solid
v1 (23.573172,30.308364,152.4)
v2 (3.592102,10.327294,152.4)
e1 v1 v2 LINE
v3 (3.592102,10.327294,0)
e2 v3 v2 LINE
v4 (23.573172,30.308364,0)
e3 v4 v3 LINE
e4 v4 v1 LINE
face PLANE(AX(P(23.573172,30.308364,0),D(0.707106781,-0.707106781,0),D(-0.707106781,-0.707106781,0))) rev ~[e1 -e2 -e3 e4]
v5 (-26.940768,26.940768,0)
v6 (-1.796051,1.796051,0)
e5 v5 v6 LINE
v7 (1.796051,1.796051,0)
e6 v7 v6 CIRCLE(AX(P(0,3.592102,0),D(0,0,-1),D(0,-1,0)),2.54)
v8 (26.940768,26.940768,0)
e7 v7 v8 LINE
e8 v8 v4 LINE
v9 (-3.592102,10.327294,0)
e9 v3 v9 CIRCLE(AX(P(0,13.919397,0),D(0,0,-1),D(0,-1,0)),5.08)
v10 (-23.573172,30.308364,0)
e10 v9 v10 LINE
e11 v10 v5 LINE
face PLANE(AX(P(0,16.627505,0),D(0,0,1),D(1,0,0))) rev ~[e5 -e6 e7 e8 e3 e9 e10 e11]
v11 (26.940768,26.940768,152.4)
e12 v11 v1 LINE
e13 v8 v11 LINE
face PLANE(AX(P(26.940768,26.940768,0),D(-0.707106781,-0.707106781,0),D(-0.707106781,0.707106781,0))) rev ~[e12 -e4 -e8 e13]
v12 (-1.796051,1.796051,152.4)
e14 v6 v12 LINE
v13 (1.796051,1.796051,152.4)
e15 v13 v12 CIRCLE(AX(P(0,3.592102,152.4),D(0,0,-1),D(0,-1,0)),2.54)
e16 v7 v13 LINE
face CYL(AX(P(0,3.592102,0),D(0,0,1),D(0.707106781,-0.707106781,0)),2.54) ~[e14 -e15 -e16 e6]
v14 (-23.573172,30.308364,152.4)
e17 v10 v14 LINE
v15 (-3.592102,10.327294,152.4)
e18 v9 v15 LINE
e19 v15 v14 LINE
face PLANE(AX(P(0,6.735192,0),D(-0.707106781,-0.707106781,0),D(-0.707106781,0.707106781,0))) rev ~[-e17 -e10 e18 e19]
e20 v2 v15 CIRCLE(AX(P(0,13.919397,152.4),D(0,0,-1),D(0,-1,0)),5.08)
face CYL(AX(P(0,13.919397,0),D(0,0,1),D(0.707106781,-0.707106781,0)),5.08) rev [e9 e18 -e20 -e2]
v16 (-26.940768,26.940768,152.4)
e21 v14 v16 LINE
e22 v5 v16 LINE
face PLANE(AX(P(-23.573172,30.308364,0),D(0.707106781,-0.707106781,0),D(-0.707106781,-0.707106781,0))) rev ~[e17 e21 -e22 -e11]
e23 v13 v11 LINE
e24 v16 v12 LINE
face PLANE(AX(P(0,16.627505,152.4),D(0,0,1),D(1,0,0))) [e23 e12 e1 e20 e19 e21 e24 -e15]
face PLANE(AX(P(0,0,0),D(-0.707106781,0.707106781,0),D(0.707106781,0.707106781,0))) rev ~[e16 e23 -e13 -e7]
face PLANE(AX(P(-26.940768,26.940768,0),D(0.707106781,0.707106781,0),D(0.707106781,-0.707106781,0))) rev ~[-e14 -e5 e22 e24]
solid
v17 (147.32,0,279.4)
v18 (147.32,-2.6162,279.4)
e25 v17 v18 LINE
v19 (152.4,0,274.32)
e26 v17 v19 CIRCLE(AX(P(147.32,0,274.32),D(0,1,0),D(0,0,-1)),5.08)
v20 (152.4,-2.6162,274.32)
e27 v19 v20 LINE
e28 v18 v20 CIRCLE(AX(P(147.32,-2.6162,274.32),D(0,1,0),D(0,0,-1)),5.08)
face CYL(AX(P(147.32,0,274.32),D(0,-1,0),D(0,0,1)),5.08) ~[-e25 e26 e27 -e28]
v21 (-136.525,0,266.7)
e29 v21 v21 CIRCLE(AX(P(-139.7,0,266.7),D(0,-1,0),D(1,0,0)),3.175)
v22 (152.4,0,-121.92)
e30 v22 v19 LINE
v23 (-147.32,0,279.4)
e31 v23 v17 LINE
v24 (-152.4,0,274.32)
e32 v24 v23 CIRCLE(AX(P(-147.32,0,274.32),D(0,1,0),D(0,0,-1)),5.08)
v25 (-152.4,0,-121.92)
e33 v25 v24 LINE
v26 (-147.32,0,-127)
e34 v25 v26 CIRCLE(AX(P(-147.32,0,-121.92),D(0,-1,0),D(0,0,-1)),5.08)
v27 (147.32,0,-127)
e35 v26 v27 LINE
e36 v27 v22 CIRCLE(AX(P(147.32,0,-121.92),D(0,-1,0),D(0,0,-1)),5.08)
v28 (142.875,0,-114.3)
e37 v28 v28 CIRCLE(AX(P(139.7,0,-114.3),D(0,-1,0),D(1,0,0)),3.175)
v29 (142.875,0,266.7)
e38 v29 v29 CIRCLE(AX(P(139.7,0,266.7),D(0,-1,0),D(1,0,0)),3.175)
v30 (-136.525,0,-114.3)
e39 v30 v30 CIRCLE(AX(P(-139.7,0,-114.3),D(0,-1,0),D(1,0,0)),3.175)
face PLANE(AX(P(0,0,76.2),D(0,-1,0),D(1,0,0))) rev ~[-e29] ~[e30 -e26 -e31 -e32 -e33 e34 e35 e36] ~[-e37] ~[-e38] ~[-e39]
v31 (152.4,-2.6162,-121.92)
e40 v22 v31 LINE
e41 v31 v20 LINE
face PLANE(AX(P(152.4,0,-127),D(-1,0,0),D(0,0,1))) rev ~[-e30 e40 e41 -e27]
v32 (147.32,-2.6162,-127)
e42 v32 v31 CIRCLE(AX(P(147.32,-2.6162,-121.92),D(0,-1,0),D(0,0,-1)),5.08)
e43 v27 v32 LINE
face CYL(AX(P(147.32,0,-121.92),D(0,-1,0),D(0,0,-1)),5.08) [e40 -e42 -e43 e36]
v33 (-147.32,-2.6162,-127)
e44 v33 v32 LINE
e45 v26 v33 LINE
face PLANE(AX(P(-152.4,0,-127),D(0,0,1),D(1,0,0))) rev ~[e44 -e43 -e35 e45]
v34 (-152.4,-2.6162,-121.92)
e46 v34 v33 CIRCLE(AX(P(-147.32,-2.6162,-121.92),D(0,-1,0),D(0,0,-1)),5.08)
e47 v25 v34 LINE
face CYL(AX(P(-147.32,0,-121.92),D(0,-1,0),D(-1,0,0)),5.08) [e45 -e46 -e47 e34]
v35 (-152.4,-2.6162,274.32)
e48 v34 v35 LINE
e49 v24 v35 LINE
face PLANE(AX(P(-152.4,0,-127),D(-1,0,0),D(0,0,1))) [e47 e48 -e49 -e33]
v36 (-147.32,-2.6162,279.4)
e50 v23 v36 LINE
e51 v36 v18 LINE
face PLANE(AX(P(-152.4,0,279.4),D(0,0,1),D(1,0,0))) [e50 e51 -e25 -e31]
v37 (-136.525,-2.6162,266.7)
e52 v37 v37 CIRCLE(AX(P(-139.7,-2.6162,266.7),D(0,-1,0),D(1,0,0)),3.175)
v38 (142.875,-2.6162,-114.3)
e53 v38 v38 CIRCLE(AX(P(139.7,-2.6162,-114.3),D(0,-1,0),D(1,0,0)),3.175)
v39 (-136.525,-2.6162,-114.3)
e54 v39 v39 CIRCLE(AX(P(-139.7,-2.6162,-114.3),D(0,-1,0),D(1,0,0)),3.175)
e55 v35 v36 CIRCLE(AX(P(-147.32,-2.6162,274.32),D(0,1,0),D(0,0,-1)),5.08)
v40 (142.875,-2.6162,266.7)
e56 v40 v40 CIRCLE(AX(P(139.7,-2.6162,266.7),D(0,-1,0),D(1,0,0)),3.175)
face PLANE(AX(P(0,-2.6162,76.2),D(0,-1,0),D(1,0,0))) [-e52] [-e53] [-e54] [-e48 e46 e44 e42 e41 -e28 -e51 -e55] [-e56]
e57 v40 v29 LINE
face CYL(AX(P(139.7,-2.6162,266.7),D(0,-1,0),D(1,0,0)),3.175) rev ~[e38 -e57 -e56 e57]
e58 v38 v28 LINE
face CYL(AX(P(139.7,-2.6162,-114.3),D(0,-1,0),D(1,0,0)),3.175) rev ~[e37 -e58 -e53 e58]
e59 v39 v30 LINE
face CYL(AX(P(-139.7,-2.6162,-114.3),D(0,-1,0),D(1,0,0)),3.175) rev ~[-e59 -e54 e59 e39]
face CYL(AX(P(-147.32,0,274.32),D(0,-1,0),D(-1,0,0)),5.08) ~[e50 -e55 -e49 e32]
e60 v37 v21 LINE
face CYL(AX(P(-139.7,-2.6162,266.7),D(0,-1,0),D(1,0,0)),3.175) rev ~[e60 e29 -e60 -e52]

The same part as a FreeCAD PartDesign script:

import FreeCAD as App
import Part
import Sketcher
from FreeCAD import Vector
Q = App.Units.Quantity


def edges_at(feature, points):
    """Names of the edges that pass closest to the given points."""
    edges = feature.Shape.Edges
    near = lambda p: min(range(len(edges)), key=lambda i: edges[i].distToShape(Part.Vertex(*p))[0])
    return sorted({f"Edge{near(p) + 1}" for p in points})

doc = App.newDocument("Part")
params = doc.addObject("Spreadsheet::Sheet", "Params")
for row, (alias, value) in enumerate([
    ("sketch1_length", "1.5 in"),
    ("sketch1_length2", "0.1875 in"),
    ("pad1_length", "6 in"),
    ("fillet_radius", "0.2 in"),
    ("fillet2_radius", "0.1 in"),
    ("sketch2_width", "12 in"),
    ("sketch2_height", "16 in"),
    ("pad2_length", "0.103 in"),
    ("sketch3_diameter", "0.25 in"),
    ("fillet3_radius", "0.2 in"),
], start=1):
    params.set(f"A{row}", alias)
    params.set(f"B{row}", "=" + value)
    params.setAlias(f"B{row}", alias)

body = doc.addObject("PartDesign::Body", "Body")

sketch1 = body.newObject("Sketcher::SketchObject", "Sketch")
sketch1.AttachmentSupport = (doc.getObject("XY_Plane"), [""])
sketch1.MapMode = "FlatFace"
sketch1.addGeometry([
    Part.LineSegment(Vector(-23.6, 30.3, 0), Vector(-26.9, 26.9, 0)),
    Part.LineSegment(Vector(-26.9, 26.9, 0), Vector(0, 0, 0)),
    Part.LineSegment(Vector(0, 0, 0), Vector(26.9, 26.9, 0)),
    Part.LineSegment(Vector(26.9, 26.9, 0), Vector(23.6, 30.3, 0)),
    Part.LineSegment(Vector(23.6, 30.3, 0), Vector(0, 6.7, 0)),
    Part.LineSegment(Vector(0, 6.7, 0), Vector(-23.6, 30.3, 0)),
], False)
sketch1.addConstraint([
    Sketcher.Constraint("Coincident", 0, 2, 1, 1),
    Sketcher.Constraint("Coincident", 1, 2, 2, 1),
    Sketcher.Constraint("Coincident", 2, 2, 3, 1),
    Sketcher.Constraint("Coincident", 3, 2, 4, 1),
    Sketcher.Constraint("Coincident", 4, 2, 5, 1),
    Sketcher.Constraint("Coincident", 5, 2, 0, 1),
    Sketcher.Constraint("Coincident", 1, 2, -1, 1),
    Sketcher.Constraint("Symmetric", 0, 2, 2, 2, -2),
    Sketcher.Constraint("Symmetric", 3, 2, 5, 2, -2),
    Sketcher.Constraint("PointOnObject", 4, 2, -2),
    Sketcher.Constraint("Perpendicular", 0, 1),
    Sketcher.Constraint("Perpendicular", 1, 2),
    Sketcher.Constraint("Perpendicular", 3, 4),
    Sketcher.Constraint("Distance", 1, Q("1.5 in")),
    Sketcher.Constraint("Distance", 0, Q("0.1875 in")),
])
sketch1.setExpression("Constraints[13]", "Params.sketch1_length")
sketch1.setExpression("Constraints[14]", "Params.sketch1_length2")
pad1 = body.newObject("PartDesign::Pad", "Pad")
pad1.Profile = sketch1
pad1.setExpression("Length", "Params.pad1_length")
doc.recompute()

fillet = body.newObject("PartDesign::Fillet", "Fillet")
fillet.Base = (pad1, edges_at(pad1, [(0, 6.735, 76.2)]))
fillet.setExpression("Radius", "Params.fillet_radius")
doc.recompute()

fillet2 = body.newObject("PartDesign::Fillet", "Fillet001")
fillet2.Base = (fillet, edges_at(fillet, [(0, 0, 76.2)]))
fillet2.setExpression("Radius", "Params.fillet2_radius")
body2 = doc.addObject("PartDesign::Body", "Body001")

sketch2 = body2.newObject("Sketcher::SketchObject", "Sketch001")
sketch2.AttachmentSupport = (doc.getObject("XZ_Plane001"), [""])
sketch2.MapMode = "FlatFace"
sketch2.addGeometry([
    Part.LineSegment(Vector(-152, 279, 0), Vector(-152, -127, 0)),
    Part.LineSegment(Vector(-152, -127, 0), Vector(152, -127, 0)),
    Part.LineSegment(Vector(152, -127, 0), Vector(152, 279, 0)),
    Part.LineSegment(Vector(152, 279, 0), Vector(-152, 279, 0)),
], False)
sketch2.addConstraint([
    Sketcher.Constraint("Coincident", 0, 2, 1, 1),
    Sketcher.Constraint("Coincident", 1, 2, 2, 1),
    Sketcher.Constraint("Coincident", 2, 2, 3, 1),
    Sketcher.Constraint("Coincident", 3, 2, 0, 1),
    Sketcher.Constraint("Vertical", 0),
    Sketcher.Constraint("Horizontal", 1),
    Sketcher.Constraint("Vertical", 2),
    Sketcher.Constraint("Horizontal", 3),
    Sketcher.Constraint("DistanceX", 1, 1, 1, 2, Q("12 in")),
    Sketcher.Constraint("DistanceY", 0, 2, 0, 1, Q("16 in")),
    Sketcher.Constraint("DistanceX", 0, 2, -1, 1, Q("6 in")),
    Sketcher.Constraint("DistanceY", 0, 2, -1, 1, Q("5 in")),
])
sketch2.setExpression("Constraints[8]", "Params.sketch2_width")
sketch2.setExpression("Constraints[9]", "Params.sketch2_height")
pad2 = body2.newObject("PartDesign::Pad", "Pad001")
pad2.Profile = sketch2
pad2.setExpression("Length", "Params.pad2_length")

sketch3 = body2.newObject("Sketcher::SketchObject", "Sketch002")
sketch3.AttachmentSupport = (doc.getObject("XZ_Plane001"), [""])
sketch3.MapMode = "FlatFace"
sketch3.AttachmentOffset = App.Placement(Vector(0, 0, 0.103 * 25.4), App.Rotation())
sketch3.addGeometry([
    Part.Circle(Vector(-139.7, 266.7, 0), Vector(0, 0, 1), 3.2),
    Part.Circle(Vector(139.7, 266.7, 0), Vector(0, 0, 1), 3.2),
    Part.Circle(Vector(139.7, -114.3, 0), Vector(0, 0, 1), 3.2),
    Part.Circle(Vector(-139.7, -114.3, 0), Vector(0, 0, 1), 3.2),
], False)
sketch3.addConstraint([
    Sketcher.Constraint("Equal", 0, 1),
    Sketcher.Constraint("Equal", 1, 2),
    Sketcher.Constraint("Equal", 2, 3),
    Sketcher.Constraint("Symmetric", 0, 3, 1, 3, -2),
    Sketcher.Constraint("Symmetric", 2, 3, 3, 3, -2),
    Sketcher.Constraint("Vertical", 1, 3, 2, 3),
    Sketcher.Constraint("Diameter", 0, Q("0.25 in")),
    Sketcher.Constraint("DistanceX", 0, 3, 1, 3, Q("11 in")),
    Sketcher.Constraint("DistanceY", 2, 3, 1, 3, Q("15 in")),
    Sketcher.Constraint("DistanceY", -1, 1, 0, 3, Q("10.5 in")),
])
sketch3.setExpression("Constraints[6]", "Params.sketch3_diameter")
pocket1 = body2.newObject("PartDesign::Pocket", "Pocket")
pocket1.Profile = sketch3
pocket1.Type = "ThroughAll"
doc.recompute()

fillet3 = body2.newObject("PartDesign::Fillet", "Fillet002")
fillet3.Base = (pocket1, edges_at(pocket1, [
    (-152.4, -1.308, 279.4),
    (152.4, -1.308, 279.4),
    (152.4, -1.308, -127),
    (-152.4, -1.308, -127),
]))
fillet3.setExpression("Radius", "Params.fillet3_radius")

doc.recompute()
